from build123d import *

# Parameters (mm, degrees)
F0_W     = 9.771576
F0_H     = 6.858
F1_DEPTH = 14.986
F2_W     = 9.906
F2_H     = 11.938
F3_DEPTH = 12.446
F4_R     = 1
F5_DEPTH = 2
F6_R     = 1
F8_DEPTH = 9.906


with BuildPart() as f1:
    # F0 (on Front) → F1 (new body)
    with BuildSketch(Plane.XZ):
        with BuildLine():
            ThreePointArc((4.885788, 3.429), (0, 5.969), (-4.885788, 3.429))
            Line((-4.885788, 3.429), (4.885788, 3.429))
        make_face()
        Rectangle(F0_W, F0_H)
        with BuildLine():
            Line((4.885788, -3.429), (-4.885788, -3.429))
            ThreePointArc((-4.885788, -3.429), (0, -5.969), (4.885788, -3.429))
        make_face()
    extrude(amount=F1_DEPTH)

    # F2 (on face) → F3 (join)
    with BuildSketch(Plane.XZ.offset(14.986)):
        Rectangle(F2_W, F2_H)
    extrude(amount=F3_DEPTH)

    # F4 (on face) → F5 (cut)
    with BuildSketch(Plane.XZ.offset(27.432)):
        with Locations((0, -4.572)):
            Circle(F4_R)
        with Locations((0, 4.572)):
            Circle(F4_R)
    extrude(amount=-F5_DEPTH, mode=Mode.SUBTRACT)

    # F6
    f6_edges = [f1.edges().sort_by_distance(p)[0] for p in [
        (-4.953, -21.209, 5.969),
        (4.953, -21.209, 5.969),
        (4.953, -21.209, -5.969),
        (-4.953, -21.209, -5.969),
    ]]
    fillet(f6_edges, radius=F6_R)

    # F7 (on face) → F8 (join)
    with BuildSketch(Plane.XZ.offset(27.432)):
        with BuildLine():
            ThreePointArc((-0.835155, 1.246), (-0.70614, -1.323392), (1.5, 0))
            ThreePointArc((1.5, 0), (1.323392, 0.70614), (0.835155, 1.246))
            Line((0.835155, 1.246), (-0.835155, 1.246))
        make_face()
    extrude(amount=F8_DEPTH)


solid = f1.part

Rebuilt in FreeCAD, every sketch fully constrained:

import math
import FreeCAD as App
import Part
import Sketcher
from FreeCAD import Vector
Q = App.Units.Quantity


def edges_at(feature, points):
    """Names of the edges that pass closest to the given points."""
    edges = feature.Shape.Edges
    near = lambda p: min(range(len(edges)), key=lambda i: edges[i].distToShape(Part.Vertex(*p))[0])
    return sorted({f"Edge{near(p) + 1}" for p in points})


def add_polygon(sketch, points):
    """Adds a closed chain of lines whose ends are joined by coincident constraints."""
    first, n = sketch.GeometryCount, len(points)
    for a, b in zip(points, points[1:] + points[:1]):
        sketch.addGeometry(Part.LineSegment(App.Vector(*a, 0), App.Vector(*b, 0)), False)
    for i in range(n):
        sketch.addConstraint(Sketcher.Constraint("Coincident", first + i, 2, first + (i + 1) % n, 1))

doc = App.newDocument("Part")
body = doc.addObject("PartDesign::Body", "Body")

sketch1 = body.newObject("Sketcher::SketchObject", "Sketch")
sketch1.AttachmentSupport = (doc.getObject("XZ_Plane"), [""])
sketch1.MapMode = "FlatFace"
sketch1.addGeometry([
    Part.ArcOfCircle(Part.Circle(Vector(0, 0, 0), Vector(0, 0, 1), 6), math.radians(35), math.radians(145)),
    Part.LineSegment(Vector(-5, 3, 0), Vector(-5, -3, 0)),
    Part.ArcOfCircle(Part.Circle(Vector(0, 0, 0), Vector(0, 0, 1), 6), math.radians(-145), math.radians(-35)),
    Part.LineSegment(Vector(5, -3, 0), Vector(5, 3, 0)),
], False)
sketch1.addConstraint([
    Sketcher.Constraint("Coincident", 0, 2, 1, 1),
    Sketcher.Constraint("Coincident", 1, 2, 2, 1),
    Sketcher.Constraint("Coincident", 2, 2, 3, 1),
    Sketcher.Constraint("Coincident", 3, 2, 0, 1),
    Sketcher.Constraint("Vertical", 1),
    Sketcher.Constraint("Vertical", 3),
    Sketcher.Constraint("Coincident", 0, 3, -1, 1),
    Sketcher.Constraint("Coincident", 2, 3, -1, 1),
    Sketcher.Constraint("Equal", 0, 2),
    Sketcher.Constraint("Horizontal", 1, 2, 2, 2),
    Sketcher.Constraint("Radius", 0, Q("0.235 in")),
    Sketcher.Constraint("DistanceY", 1, 2, 1, 1, Q("0.27 in")),
])
pad1 = body.newObject("PartDesign::Pad", "Pad")
pad1.Profile = sketch1
pad1.Length = Q("0.59 in")

sketch2 = body.newObject("Sketcher::SketchObject", "Sketch001")
sketch2.AttachmentSupport = (doc.getObject("XZ_Plane"), [""])
sketch2.MapMode = "FlatFace"
sketch2.AttachmentOffset = App.Placement(Vector(0, 0, 0.59 * 25.4), App.Rotation())
add_polygon(sketch2, [(-5, 6), (-5, -6), (5, -6), (5, 6)])
sketch2.addConstraint([
    Sketcher.Constraint("Vertical", 0),
    Sketcher.Constraint("Horizontal", 1),
    Sketcher.Constraint("Vertical", 2),
    Sketcher.Constraint("Horizontal", 3),
    Sketcher.Constraint("Symmetric", 0, 2, 2, 2, -1, 1),
    Sketcher.Constraint("DistanceX", 1, 1, 1, 2, Q("0.39 in")),
    Sketcher.Constraint("DistanceY", 0, 2, 0, 1, Q("0.47 in")),
])
pad2 = body.newObject("PartDesign::Pad", "Pad001")
pad2.Profile = sketch2
pad2.Length = Q("0.49 in")

sketch3 = body.newObject("Sketcher::SketchObject", "Sketch002")
sketch3.AttachmentSupport = (doc.getObject("XZ_Plane"), [""])
sketch3.MapMode = "FlatFace"
sketch3.AttachmentOffset = App.Placement(Vector(0, 0, 1.08 * 25.4), App.Rotation())
sketch3.addGeometry([
    Part.Circle(Vector(0, -4.6, 0), Vector(0, 0, 1), 1),
    Part.Circle(Vector(0, 4.6, 0), Vector(0, 0, 1), 1),
], False)
sketch3.addConstraint([
    Sketcher.Constraint("Equal", 0, 1),
    Sketcher.Constraint("Symmetric", 0, 3, 1, 3, -1, 1),
    Sketcher.Constraint("PointOnObject", 0, 3, -2),
    Sketcher.Constraint("Diameter", 0, 2.0),
    Sketcher.Constraint("DistanceY", 0, 3, -1, 1, Q("0.18 in")),
])
pocket1 = body.newObject("PartDesign::Pocket", "Pocket")
pocket1.Profile = sketch3
pocket1.Length = 2
doc.recompute()

fillet = body.newObject("PartDesign::Fillet", "Fillet")
fillet.Base = (pocket1, edges_at(pocket1, [
    (-4.953, -21.209, 5.969),
    (4.953, -21.209, 5.969),
    (4.953, -21.209, -5.969),
    (-4.953, -21.209, -5.969),
]))
fillet.Radius = 1

sketch4 = body.newObject("Sketcher::SketchObject", "Sketch003")
sketch4.AttachmentSupport = (doc.getObject("XZ_Plane"), [""])
sketch4.MapMode = "FlatFace"
sketch4.AttachmentOffset = App.Placement(Vector(0, 0, 1.08 * 25.4), App.Rotation())
sketch4.addGeometry([
    Part.ArcOfCircle(Part.Circle(Vector(0, 0, 0), Vector(0, 0, 1), 1.5), math.radians(124), math.radians(360)),
    Part.ArcOfCircle(Part.Circle(Vector(0, 0, 0), Vector(0, 0, 1), 1.5), math.radians(0), math.radians(56)),
    Part.LineSegment(Vector(0.8, 1.2, 0), Vector(-0.8, 1.2, 0)),
], False)
sketch4.addConstraint([
    Sketcher.Constraint("Tangent", 0, 2, 1, 1),
    Sketcher.Constraint("Coincident", 1, 2, 2, 1),
    Sketcher.Constraint("Coincident", 2, 2, 0, 1),
    Sketcher.Constraint("Horizontal", 2),
    Sketcher.Constraint("Coincident", 0, 3, -1, 1),
    Sketcher.Constraint("Equal", 0, 1),
    Sketcher.Constraint("PointOnObject", 0, 2, -1),
    Sketcher.Constraint("Radius", 0, 1.5),
    Sketcher.Constraint("DistanceX", 2, 2, 2, 1, 1.67031),
])
pad3 = body.newObject("PartDesign::Pad", "Pad002")
pad3.Profile = sketch4
pad3.Length = Q("0.39 in")

doc.recompute()
